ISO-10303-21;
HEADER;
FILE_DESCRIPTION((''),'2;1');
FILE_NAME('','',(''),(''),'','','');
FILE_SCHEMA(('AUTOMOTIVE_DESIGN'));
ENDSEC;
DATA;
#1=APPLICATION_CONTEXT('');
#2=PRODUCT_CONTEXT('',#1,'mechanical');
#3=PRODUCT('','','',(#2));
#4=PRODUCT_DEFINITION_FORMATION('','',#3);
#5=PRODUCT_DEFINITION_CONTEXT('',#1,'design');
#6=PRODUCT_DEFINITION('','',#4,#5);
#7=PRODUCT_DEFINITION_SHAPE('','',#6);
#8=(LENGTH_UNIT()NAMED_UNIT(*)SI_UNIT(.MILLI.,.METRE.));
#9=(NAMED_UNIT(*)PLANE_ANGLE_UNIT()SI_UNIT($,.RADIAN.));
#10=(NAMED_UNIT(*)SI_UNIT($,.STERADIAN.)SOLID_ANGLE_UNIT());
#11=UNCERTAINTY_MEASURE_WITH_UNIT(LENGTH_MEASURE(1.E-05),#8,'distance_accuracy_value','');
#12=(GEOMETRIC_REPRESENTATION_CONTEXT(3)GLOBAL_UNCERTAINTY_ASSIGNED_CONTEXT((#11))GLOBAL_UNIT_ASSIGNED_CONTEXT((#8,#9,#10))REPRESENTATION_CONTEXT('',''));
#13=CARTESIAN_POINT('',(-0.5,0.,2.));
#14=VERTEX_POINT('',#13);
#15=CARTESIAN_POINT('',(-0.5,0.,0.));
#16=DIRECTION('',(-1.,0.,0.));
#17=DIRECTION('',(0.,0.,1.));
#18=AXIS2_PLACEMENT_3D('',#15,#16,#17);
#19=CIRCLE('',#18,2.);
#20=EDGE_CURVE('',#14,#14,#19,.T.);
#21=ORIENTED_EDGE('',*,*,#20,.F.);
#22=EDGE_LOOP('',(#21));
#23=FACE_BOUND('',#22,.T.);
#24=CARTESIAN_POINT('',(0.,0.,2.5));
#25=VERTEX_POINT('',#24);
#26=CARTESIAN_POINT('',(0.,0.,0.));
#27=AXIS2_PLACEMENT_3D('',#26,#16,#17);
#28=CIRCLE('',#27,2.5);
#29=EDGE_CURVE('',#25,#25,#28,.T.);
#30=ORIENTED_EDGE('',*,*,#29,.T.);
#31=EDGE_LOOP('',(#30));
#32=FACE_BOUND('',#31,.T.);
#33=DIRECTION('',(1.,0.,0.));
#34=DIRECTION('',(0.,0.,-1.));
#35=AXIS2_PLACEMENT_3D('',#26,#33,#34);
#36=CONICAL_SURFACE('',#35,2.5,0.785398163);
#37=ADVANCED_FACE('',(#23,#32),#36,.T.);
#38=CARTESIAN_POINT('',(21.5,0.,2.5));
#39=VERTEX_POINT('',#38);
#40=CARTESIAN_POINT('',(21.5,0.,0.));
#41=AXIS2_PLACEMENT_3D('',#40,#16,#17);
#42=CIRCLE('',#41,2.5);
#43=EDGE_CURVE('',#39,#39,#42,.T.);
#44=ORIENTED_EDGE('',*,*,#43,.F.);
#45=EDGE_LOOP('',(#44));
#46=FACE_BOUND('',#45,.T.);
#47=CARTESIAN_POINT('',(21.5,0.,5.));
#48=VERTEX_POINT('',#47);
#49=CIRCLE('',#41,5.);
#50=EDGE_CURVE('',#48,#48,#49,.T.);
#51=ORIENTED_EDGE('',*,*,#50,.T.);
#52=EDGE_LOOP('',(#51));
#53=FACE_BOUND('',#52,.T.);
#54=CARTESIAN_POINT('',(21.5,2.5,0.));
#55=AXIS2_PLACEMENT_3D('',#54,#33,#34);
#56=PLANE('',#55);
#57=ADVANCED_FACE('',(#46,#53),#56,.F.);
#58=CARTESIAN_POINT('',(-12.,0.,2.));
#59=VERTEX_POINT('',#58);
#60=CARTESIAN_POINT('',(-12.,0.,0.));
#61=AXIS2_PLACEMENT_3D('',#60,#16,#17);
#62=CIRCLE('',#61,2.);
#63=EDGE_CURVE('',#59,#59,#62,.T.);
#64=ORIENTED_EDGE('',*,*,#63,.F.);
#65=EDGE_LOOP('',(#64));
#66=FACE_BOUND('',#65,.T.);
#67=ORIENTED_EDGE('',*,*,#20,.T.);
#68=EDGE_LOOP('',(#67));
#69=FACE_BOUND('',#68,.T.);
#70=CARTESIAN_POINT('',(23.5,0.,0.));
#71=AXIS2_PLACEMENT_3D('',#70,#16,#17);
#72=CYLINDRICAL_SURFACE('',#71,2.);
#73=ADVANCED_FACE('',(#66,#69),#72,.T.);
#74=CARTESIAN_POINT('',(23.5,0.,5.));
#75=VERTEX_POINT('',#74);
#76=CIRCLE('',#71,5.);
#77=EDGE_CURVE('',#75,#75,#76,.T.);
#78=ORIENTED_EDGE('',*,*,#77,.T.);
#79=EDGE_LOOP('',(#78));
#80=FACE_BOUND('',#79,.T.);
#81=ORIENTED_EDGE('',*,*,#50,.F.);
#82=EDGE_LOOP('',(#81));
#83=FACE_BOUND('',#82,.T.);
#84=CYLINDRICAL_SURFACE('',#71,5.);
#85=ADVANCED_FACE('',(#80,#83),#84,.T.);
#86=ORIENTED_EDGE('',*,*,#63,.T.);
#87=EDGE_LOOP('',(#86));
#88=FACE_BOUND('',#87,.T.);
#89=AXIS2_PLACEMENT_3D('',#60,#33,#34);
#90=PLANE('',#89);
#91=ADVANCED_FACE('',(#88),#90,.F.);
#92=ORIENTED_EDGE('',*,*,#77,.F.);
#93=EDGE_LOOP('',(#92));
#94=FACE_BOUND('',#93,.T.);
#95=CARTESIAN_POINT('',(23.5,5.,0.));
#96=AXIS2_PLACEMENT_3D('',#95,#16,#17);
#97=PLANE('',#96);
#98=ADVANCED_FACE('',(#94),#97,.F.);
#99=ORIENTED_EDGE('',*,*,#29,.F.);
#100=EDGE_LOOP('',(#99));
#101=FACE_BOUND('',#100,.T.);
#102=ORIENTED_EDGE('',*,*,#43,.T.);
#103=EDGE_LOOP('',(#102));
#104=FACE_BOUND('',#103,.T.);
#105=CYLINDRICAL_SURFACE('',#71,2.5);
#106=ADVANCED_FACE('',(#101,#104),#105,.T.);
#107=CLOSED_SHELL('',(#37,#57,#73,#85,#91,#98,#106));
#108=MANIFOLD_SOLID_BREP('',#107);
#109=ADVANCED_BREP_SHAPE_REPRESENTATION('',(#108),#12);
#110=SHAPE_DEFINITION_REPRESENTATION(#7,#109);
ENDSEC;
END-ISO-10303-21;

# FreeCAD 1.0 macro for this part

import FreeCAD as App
import Part
import Sketcher

V = App.Vector
Q = App.Units.Quantity


def add_polygon(sketch, points):
    """Adds a closed chain of lines whose ends are joined by coincident constraints."""
    first, n = sketch.GeometryCount, len(points)
    for a, b in zip(points, points[1:] + points[:1]):
        sketch.addGeometry(Part.LineSegment(App.Vector(*a, 0), App.Vector(*b, 0)), False)
    for i in range(n):
        sketch.addConstraint(Sketcher.Constraint("Coincident", first + i, 2, first + (i + 1) % n, 1))

doc = App.newDocument("Part")
body = doc.addObject("PartDesign::Body", "Body")

sketch1 = doc.addObject("Sketcher::SketchObject", "Sketch")
body.addObject(sketch1)
sketch1.AttachmentSupport = (doc.XY_Plane, [""])
sketch1.MapMode = "FlatFace"
add_polygon(sketch1, [(-12, 2), (-12, 0), (23.5, 0), (23.5, 5), (21.5, 5), (21.5, 2.5), (0, 2.5), (-0.5, 2)])
sketch1.addConstraint([
    Sketcher.Constraint("Vertical", 0),
    Sketcher.Constraint("Horizontal", 1),
    Sketcher.Constraint("Vertical", 2),
    Sketcher.Constraint("Horizontal", 3),
    Sketcher.Constraint("Vertical", 4),
    Sketcher.Constraint("Horizontal", 5),
    Sketcher.Constraint("Horizontal", 7),
    Sketcher.Constraint("PointOnObject", 0, 2, -1),
    Sketcher.Constraint("PointOnObject", 5, 2, -2),
    Sketcher.Constraint("Equal", 3, 0),
    Sketcher.Constraint("DistanceX", 3, 2, 3, 1, 2.0),
    Sketcher.Constraint("DistanceY", 2, 1, 2, 2, 5.0),
    Sketcher.Constraint("Angle", 6, Q("-135 deg")),
    Sketcher.Constraint("DistanceX", 1, 1, 1, 2, 35.5),
    Sketcher.Constraint("DistanceX", 5, 2, 5, 1, 21.5),
    Sketcher.Constraint("DistanceX", 7, 2, 7, 1, 11.5),
])
revolution = doc.addObject("PartDesign::Revolution", "Revolution")
body.addObject(revolution)
revolution.Profile = sketch1
revolution.ReferenceAxis = (sketch1, ["H_Axis"])
revolution.Angle = 360

doc.recompute()
